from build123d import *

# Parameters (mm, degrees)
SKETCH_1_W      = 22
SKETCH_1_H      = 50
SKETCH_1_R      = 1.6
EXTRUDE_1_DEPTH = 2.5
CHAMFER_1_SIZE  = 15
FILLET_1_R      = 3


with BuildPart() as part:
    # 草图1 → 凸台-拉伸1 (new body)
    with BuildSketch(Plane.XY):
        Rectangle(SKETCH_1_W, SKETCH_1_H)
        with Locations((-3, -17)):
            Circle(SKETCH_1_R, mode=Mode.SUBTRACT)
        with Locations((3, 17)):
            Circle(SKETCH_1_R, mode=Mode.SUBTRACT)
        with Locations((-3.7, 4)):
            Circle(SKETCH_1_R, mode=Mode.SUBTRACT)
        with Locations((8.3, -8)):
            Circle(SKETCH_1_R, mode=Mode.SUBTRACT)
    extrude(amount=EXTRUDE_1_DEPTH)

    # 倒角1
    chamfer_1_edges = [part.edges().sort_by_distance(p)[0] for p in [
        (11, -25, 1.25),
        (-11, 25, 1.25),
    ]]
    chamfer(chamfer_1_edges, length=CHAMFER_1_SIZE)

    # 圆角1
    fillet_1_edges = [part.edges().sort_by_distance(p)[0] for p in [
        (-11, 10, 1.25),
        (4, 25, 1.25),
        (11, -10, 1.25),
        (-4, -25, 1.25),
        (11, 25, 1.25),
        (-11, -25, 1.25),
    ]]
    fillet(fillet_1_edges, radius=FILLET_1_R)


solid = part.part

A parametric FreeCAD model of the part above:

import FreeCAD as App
import Part
import Sketcher
from FreeCAD import Vector
Q = App.Units.Quantity


def edges_at(feature, points):
    """Names of the edges that pass closest to the given points."""
    edges = feature.Shape.Edges
    near = lambda p: min(range(len(edges)), key=lambda i: edges[i].distToShape(Part.Vertex(*p))[0])
    return sorted({f"Edge{near(p) + 1}" for p in points})

doc = App.newDocument("Part")
body = doc.addObject("PartDesign::Body", "Body")

sketch1 = body.newObject("Sketcher::SketchObject", "Sketch")
sketch1.AttachmentSupport = (doc.getObject("XY_Plane"), [""])
sketch1.MapMode = "FlatFace"
sketch1.addGeometry([
    Part.LineSegment(Vector(-11, 25, 0), Vector(-11, -25, 0)),
    Part.LineSegment(Vector(-11, -25, 0), Vector(11, -25, 0)),
    Part.LineSegment(Vector(11, -25, 0), Vector(11, 25, 0)),
    Part.LineSegment(Vector(11, 25, 0), Vector(-11, 25, 0)),
    Part.Circle(Vector(-3, -17, 0), Vector(0, 0, 1), 1.6),
    Part.Circle(Vector(8.3, -8, 0), Vector(0, 0, 1), 1.6),
    Part.Circle(Vector(-3.7, 4, 0), Vector(0, 0, 1), 1.6),
    Part.Circle(Vector(3, 17, 0), Vector(0, 0, 1), 1.6),
], False)
sketch1.addConstraint([
    Sketcher.Constraint("Coincident", 0, 2, 1, 1),
    Sketcher.Constraint("Coincident", 1, 2, 2, 1),
    Sketcher.Constraint("Coincident", 2, 2, 3, 1),
    Sketcher.Constraint("Coincident", 3, 2, 0, 1),
    Sketcher.Constraint("Vertical", 0),
    Sketcher.Constraint("Horizontal", 1),
    Sketcher.Constraint("Vertical", 2),
    Sketcher.Constraint("Horizontal", 3),
    Sketcher.Constraint("Equal", 4, 5),
    Sketcher.Constraint("Equal", 5, 6),
    Sketcher.Constraint("Equal", 6, 7),
    Sketcher.Constraint("Symmetric", 4, 3, 7, 3, -1, 1),
    Sketcher.Constraint("Symmetric", 0, 2, 2, 2, -1, 1),
    Sketcher.Constraint("Diameter", 4, Q("3.2 mm")),
    Sketcher.Constraint("DistanceX", 1, 1, 1, 2, Q("22 mm")),
    Sketcher.Constraint("DistanceY", 0, 2, 0, 1, Q("50 mm")),
    Sketcher.Constraint("DistanceX", 4, 3, -1, 1, Q("3 mm")),
    Sketcher.Constraint("DistanceY", 4, 3, -1, 1, Q("17 mm")),
    Sketcher.Constraint("DistanceY", 5, 3, -1, 1, Q("8 mm")),
    Sketcher.Constraint("DistanceY", -1, 1, 6, 3, Q("4 mm")),
    Sketcher.Constraint("DistanceX", 6, 3, 5, 3, Q("12 mm")),
    Sketcher.Constraint("DistanceX", -1, 1, 5, 3, Q("8.3 mm")),
])
pad1 = body.newObject("PartDesign::Pad", "Pad")
pad1.Profile = sketch1
pad1.Length = 2.5
doc.recompute()

chamfer = body.newObject("PartDesign::Chamfer", "Chamfer")
chamfer.Base = (pad1, edges_at(pad1, [(11, -25, 1.25), (-11, 25, 1.25)]))
chamfer.Size = 15
doc.recompute()

fillet = body.newObject("PartDesign::Fillet", "Fillet")
fillet.Base = (chamfer, edges_at(chamfer, [
    (-11, 10, 1.25),
    (4, 25, 1.25),
    (11, -10, 1.25),
    (-4, -25, 1.25),
    (11, 25, 1.25),
    (-11, -25, 1.25),
]))
fillet.Radius = 3

doc.recompute()
